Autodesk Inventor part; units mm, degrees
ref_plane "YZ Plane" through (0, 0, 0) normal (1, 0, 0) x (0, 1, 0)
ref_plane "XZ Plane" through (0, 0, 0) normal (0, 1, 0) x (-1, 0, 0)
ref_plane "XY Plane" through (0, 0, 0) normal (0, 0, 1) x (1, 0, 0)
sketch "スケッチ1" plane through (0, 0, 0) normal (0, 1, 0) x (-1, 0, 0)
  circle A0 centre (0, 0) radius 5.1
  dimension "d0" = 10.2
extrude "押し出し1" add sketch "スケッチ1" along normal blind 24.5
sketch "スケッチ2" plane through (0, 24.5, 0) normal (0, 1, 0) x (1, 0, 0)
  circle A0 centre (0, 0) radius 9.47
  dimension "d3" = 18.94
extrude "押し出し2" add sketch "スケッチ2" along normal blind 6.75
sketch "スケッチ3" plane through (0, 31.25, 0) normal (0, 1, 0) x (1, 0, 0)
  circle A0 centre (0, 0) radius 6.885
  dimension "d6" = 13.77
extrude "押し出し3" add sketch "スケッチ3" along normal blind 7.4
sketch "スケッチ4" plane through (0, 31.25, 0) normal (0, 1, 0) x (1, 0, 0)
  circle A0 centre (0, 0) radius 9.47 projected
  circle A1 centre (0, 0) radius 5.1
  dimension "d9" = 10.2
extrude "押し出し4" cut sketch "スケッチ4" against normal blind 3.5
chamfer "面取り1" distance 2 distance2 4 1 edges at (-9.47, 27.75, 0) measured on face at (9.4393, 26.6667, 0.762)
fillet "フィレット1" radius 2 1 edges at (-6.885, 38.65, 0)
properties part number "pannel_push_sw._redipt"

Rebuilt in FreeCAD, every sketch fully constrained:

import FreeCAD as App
import Part
import Sketcher


def edges_at(feature, points):
    """Names of the edges that pass closest to the given points."""
    edges = feature.Shape.Edges
    near = lambda p: min(range(len(edges)), key=lambda i: edges[i].distToShape(Part.Vertex(*p))[0])
    return sorted({f"Edge{near(p) + 1}" for p in points})

doc = App.newDocument("Part")
body = doc.addObject("PartDesign::Body", "Body")

# Sketch on XZ plane
sketch1 = doc.addObject("Sketcher::SketchObject", "Sketch")
body.addObject(sketch1)
sketch1.AttachmentSupport = (doc.XZ_Plane, [""])
sketch1.MapMode = "FlatFace"
sketch1.addGeometry(Part.Circle(App.Vector(0, 0, 0), App.Vector(0, 0, 1), 5), False)
sketch1.addConstraint(Sketcher.Constraint("Coincident", 0, 3, -1, 1))
sketch1.addConstraint(Sketcher.Constraint("Diameter", 0, 10.2))
pad1 = doc.addObject("PartDesign::Pad", "Pad")
body.addObject(pad1)
pad1.Profile = sketch1
pad1.Length = 24.5
pad1.Reversed = True

# Sketch on XZ plane
sketch2 = doc.addObject("Sketcher::SketchObject", "Sketch001")
body.addObject(sketch2)
sketch2.AttachmentSupport = (doc.XZ_Plane, [""])
sketch2.MapMode = "FlatFace"
sketch2.AttachmentOffset = App.Placement(App.Vector(0, 0, -24.5), App.Rotation())
sketch2.addGeometry(Part.Circle(App.Vector(0, 0, 0), App.Vector(0, 0, 1), 9), False)
sketch2.addConstraint(Sketcher.Constraint("Coincident", 0, 3, -1, 1))
sketch2.addConstraint(Sketcher.Constraint("Diameter", 0, 18.94))
pad2 = doc.addObject("PartDesign::Pad", "Pad001")
body.addObject(pad2)
pad2.Profile = sketch2
pad2.Length = 6.75
pad2.Reversed = True

# Sketch on XZ plane
sketch3 = doc.addObject("Sketcher::SketchObject", "Sketch002")
body.addObject(sketch3)
sketch3.AttachmentSupport = (doc.XZ_Plane, [""])
sketch3.MapMode = "FlatFace"
sketch3.AttachmentOffset = App.Placement(App.Vector(0, 0, -31.25), App.Rotation())
sketch3.addGeometry(Part.Circle(App.Vector(0, 0, 0), App.Vector(0, 0, 1), 7), False)
sketch3.addConstraint(Sketcher.Constraint("Coincident", 0, 3, -1, 1))
sketch3.addConstraint(Sketcher.Constraint("Diameter", 0, 13.77))
pad3 = doc.addObject("PartDesign::Pad", "Pad002")
body.addObject(pad3)
pad3.Profile = sketch3
pad3.Length = 7.4
pad3.Reversed = True

# Sketch on XZ plane
sketch4 = doc.addObject("Sketcher::SketchObject", "Sketch003")
body.addObject(sketch4)
sketch4.AttachmentSupport = (doc.XZ_Plane, [""])
sketch4.MapMode = "FlatFace"
sketch4.AttachmentOffset = App.Placement(App.Vector(0, 0, -31.25), App.Rotation())
sketch4.addGeometry(Part.Circle(App.Vector(0, 0, 0), App.Vector(0, 0, 1), 9), False)
sketch4.addGeometry(Part.Circle(App.Vector(0, 0, 0), App.Vector(0, 0, 1), 5), False)
sketch4.addConstraint(Sketcher.Constraint("Coincident", 0, 3, -1, 1))
sketch4.addConstraint(Sketcher.Constraint("Coincident", 1, 3, -1, 1))
sketch4.addConstraint(Sketcher.Constraint("Diameter", 1, 10.2))
sketch4.addConstraint(Sketcher.Constraint("Diameter", 0, 18.94))
pocket1 = doc.addObject("PartDesign::Pocket", "Pocket")
body.addObject(pocket1)
pocket1.Profile = sketch4
pocket1.Length = 3.5
pocket1.Reversed = True
doc.recompute()

chamfer = doc.addObject("PartDesign::Chamfer", "Chamfer")
body.addObject(chamfer)
chamfer.Base = (pocket1, edges_at(pocket1, [(-9.47, 27.75, 0)]))
chamfer.ChamferType = "Two distances"
chamfer.Size = 2
chamfer.Size2 = 4
doc.recompute()

fillet = doc.addObject("PartDesign::Fillet", "Fillet")
body.addObject(fillet)
fillet.Base = (chamfer, edges_at(chamfer, [(-6.885, 38.65, 0)]))
fillet.Radius = 2

doc.recompute()
